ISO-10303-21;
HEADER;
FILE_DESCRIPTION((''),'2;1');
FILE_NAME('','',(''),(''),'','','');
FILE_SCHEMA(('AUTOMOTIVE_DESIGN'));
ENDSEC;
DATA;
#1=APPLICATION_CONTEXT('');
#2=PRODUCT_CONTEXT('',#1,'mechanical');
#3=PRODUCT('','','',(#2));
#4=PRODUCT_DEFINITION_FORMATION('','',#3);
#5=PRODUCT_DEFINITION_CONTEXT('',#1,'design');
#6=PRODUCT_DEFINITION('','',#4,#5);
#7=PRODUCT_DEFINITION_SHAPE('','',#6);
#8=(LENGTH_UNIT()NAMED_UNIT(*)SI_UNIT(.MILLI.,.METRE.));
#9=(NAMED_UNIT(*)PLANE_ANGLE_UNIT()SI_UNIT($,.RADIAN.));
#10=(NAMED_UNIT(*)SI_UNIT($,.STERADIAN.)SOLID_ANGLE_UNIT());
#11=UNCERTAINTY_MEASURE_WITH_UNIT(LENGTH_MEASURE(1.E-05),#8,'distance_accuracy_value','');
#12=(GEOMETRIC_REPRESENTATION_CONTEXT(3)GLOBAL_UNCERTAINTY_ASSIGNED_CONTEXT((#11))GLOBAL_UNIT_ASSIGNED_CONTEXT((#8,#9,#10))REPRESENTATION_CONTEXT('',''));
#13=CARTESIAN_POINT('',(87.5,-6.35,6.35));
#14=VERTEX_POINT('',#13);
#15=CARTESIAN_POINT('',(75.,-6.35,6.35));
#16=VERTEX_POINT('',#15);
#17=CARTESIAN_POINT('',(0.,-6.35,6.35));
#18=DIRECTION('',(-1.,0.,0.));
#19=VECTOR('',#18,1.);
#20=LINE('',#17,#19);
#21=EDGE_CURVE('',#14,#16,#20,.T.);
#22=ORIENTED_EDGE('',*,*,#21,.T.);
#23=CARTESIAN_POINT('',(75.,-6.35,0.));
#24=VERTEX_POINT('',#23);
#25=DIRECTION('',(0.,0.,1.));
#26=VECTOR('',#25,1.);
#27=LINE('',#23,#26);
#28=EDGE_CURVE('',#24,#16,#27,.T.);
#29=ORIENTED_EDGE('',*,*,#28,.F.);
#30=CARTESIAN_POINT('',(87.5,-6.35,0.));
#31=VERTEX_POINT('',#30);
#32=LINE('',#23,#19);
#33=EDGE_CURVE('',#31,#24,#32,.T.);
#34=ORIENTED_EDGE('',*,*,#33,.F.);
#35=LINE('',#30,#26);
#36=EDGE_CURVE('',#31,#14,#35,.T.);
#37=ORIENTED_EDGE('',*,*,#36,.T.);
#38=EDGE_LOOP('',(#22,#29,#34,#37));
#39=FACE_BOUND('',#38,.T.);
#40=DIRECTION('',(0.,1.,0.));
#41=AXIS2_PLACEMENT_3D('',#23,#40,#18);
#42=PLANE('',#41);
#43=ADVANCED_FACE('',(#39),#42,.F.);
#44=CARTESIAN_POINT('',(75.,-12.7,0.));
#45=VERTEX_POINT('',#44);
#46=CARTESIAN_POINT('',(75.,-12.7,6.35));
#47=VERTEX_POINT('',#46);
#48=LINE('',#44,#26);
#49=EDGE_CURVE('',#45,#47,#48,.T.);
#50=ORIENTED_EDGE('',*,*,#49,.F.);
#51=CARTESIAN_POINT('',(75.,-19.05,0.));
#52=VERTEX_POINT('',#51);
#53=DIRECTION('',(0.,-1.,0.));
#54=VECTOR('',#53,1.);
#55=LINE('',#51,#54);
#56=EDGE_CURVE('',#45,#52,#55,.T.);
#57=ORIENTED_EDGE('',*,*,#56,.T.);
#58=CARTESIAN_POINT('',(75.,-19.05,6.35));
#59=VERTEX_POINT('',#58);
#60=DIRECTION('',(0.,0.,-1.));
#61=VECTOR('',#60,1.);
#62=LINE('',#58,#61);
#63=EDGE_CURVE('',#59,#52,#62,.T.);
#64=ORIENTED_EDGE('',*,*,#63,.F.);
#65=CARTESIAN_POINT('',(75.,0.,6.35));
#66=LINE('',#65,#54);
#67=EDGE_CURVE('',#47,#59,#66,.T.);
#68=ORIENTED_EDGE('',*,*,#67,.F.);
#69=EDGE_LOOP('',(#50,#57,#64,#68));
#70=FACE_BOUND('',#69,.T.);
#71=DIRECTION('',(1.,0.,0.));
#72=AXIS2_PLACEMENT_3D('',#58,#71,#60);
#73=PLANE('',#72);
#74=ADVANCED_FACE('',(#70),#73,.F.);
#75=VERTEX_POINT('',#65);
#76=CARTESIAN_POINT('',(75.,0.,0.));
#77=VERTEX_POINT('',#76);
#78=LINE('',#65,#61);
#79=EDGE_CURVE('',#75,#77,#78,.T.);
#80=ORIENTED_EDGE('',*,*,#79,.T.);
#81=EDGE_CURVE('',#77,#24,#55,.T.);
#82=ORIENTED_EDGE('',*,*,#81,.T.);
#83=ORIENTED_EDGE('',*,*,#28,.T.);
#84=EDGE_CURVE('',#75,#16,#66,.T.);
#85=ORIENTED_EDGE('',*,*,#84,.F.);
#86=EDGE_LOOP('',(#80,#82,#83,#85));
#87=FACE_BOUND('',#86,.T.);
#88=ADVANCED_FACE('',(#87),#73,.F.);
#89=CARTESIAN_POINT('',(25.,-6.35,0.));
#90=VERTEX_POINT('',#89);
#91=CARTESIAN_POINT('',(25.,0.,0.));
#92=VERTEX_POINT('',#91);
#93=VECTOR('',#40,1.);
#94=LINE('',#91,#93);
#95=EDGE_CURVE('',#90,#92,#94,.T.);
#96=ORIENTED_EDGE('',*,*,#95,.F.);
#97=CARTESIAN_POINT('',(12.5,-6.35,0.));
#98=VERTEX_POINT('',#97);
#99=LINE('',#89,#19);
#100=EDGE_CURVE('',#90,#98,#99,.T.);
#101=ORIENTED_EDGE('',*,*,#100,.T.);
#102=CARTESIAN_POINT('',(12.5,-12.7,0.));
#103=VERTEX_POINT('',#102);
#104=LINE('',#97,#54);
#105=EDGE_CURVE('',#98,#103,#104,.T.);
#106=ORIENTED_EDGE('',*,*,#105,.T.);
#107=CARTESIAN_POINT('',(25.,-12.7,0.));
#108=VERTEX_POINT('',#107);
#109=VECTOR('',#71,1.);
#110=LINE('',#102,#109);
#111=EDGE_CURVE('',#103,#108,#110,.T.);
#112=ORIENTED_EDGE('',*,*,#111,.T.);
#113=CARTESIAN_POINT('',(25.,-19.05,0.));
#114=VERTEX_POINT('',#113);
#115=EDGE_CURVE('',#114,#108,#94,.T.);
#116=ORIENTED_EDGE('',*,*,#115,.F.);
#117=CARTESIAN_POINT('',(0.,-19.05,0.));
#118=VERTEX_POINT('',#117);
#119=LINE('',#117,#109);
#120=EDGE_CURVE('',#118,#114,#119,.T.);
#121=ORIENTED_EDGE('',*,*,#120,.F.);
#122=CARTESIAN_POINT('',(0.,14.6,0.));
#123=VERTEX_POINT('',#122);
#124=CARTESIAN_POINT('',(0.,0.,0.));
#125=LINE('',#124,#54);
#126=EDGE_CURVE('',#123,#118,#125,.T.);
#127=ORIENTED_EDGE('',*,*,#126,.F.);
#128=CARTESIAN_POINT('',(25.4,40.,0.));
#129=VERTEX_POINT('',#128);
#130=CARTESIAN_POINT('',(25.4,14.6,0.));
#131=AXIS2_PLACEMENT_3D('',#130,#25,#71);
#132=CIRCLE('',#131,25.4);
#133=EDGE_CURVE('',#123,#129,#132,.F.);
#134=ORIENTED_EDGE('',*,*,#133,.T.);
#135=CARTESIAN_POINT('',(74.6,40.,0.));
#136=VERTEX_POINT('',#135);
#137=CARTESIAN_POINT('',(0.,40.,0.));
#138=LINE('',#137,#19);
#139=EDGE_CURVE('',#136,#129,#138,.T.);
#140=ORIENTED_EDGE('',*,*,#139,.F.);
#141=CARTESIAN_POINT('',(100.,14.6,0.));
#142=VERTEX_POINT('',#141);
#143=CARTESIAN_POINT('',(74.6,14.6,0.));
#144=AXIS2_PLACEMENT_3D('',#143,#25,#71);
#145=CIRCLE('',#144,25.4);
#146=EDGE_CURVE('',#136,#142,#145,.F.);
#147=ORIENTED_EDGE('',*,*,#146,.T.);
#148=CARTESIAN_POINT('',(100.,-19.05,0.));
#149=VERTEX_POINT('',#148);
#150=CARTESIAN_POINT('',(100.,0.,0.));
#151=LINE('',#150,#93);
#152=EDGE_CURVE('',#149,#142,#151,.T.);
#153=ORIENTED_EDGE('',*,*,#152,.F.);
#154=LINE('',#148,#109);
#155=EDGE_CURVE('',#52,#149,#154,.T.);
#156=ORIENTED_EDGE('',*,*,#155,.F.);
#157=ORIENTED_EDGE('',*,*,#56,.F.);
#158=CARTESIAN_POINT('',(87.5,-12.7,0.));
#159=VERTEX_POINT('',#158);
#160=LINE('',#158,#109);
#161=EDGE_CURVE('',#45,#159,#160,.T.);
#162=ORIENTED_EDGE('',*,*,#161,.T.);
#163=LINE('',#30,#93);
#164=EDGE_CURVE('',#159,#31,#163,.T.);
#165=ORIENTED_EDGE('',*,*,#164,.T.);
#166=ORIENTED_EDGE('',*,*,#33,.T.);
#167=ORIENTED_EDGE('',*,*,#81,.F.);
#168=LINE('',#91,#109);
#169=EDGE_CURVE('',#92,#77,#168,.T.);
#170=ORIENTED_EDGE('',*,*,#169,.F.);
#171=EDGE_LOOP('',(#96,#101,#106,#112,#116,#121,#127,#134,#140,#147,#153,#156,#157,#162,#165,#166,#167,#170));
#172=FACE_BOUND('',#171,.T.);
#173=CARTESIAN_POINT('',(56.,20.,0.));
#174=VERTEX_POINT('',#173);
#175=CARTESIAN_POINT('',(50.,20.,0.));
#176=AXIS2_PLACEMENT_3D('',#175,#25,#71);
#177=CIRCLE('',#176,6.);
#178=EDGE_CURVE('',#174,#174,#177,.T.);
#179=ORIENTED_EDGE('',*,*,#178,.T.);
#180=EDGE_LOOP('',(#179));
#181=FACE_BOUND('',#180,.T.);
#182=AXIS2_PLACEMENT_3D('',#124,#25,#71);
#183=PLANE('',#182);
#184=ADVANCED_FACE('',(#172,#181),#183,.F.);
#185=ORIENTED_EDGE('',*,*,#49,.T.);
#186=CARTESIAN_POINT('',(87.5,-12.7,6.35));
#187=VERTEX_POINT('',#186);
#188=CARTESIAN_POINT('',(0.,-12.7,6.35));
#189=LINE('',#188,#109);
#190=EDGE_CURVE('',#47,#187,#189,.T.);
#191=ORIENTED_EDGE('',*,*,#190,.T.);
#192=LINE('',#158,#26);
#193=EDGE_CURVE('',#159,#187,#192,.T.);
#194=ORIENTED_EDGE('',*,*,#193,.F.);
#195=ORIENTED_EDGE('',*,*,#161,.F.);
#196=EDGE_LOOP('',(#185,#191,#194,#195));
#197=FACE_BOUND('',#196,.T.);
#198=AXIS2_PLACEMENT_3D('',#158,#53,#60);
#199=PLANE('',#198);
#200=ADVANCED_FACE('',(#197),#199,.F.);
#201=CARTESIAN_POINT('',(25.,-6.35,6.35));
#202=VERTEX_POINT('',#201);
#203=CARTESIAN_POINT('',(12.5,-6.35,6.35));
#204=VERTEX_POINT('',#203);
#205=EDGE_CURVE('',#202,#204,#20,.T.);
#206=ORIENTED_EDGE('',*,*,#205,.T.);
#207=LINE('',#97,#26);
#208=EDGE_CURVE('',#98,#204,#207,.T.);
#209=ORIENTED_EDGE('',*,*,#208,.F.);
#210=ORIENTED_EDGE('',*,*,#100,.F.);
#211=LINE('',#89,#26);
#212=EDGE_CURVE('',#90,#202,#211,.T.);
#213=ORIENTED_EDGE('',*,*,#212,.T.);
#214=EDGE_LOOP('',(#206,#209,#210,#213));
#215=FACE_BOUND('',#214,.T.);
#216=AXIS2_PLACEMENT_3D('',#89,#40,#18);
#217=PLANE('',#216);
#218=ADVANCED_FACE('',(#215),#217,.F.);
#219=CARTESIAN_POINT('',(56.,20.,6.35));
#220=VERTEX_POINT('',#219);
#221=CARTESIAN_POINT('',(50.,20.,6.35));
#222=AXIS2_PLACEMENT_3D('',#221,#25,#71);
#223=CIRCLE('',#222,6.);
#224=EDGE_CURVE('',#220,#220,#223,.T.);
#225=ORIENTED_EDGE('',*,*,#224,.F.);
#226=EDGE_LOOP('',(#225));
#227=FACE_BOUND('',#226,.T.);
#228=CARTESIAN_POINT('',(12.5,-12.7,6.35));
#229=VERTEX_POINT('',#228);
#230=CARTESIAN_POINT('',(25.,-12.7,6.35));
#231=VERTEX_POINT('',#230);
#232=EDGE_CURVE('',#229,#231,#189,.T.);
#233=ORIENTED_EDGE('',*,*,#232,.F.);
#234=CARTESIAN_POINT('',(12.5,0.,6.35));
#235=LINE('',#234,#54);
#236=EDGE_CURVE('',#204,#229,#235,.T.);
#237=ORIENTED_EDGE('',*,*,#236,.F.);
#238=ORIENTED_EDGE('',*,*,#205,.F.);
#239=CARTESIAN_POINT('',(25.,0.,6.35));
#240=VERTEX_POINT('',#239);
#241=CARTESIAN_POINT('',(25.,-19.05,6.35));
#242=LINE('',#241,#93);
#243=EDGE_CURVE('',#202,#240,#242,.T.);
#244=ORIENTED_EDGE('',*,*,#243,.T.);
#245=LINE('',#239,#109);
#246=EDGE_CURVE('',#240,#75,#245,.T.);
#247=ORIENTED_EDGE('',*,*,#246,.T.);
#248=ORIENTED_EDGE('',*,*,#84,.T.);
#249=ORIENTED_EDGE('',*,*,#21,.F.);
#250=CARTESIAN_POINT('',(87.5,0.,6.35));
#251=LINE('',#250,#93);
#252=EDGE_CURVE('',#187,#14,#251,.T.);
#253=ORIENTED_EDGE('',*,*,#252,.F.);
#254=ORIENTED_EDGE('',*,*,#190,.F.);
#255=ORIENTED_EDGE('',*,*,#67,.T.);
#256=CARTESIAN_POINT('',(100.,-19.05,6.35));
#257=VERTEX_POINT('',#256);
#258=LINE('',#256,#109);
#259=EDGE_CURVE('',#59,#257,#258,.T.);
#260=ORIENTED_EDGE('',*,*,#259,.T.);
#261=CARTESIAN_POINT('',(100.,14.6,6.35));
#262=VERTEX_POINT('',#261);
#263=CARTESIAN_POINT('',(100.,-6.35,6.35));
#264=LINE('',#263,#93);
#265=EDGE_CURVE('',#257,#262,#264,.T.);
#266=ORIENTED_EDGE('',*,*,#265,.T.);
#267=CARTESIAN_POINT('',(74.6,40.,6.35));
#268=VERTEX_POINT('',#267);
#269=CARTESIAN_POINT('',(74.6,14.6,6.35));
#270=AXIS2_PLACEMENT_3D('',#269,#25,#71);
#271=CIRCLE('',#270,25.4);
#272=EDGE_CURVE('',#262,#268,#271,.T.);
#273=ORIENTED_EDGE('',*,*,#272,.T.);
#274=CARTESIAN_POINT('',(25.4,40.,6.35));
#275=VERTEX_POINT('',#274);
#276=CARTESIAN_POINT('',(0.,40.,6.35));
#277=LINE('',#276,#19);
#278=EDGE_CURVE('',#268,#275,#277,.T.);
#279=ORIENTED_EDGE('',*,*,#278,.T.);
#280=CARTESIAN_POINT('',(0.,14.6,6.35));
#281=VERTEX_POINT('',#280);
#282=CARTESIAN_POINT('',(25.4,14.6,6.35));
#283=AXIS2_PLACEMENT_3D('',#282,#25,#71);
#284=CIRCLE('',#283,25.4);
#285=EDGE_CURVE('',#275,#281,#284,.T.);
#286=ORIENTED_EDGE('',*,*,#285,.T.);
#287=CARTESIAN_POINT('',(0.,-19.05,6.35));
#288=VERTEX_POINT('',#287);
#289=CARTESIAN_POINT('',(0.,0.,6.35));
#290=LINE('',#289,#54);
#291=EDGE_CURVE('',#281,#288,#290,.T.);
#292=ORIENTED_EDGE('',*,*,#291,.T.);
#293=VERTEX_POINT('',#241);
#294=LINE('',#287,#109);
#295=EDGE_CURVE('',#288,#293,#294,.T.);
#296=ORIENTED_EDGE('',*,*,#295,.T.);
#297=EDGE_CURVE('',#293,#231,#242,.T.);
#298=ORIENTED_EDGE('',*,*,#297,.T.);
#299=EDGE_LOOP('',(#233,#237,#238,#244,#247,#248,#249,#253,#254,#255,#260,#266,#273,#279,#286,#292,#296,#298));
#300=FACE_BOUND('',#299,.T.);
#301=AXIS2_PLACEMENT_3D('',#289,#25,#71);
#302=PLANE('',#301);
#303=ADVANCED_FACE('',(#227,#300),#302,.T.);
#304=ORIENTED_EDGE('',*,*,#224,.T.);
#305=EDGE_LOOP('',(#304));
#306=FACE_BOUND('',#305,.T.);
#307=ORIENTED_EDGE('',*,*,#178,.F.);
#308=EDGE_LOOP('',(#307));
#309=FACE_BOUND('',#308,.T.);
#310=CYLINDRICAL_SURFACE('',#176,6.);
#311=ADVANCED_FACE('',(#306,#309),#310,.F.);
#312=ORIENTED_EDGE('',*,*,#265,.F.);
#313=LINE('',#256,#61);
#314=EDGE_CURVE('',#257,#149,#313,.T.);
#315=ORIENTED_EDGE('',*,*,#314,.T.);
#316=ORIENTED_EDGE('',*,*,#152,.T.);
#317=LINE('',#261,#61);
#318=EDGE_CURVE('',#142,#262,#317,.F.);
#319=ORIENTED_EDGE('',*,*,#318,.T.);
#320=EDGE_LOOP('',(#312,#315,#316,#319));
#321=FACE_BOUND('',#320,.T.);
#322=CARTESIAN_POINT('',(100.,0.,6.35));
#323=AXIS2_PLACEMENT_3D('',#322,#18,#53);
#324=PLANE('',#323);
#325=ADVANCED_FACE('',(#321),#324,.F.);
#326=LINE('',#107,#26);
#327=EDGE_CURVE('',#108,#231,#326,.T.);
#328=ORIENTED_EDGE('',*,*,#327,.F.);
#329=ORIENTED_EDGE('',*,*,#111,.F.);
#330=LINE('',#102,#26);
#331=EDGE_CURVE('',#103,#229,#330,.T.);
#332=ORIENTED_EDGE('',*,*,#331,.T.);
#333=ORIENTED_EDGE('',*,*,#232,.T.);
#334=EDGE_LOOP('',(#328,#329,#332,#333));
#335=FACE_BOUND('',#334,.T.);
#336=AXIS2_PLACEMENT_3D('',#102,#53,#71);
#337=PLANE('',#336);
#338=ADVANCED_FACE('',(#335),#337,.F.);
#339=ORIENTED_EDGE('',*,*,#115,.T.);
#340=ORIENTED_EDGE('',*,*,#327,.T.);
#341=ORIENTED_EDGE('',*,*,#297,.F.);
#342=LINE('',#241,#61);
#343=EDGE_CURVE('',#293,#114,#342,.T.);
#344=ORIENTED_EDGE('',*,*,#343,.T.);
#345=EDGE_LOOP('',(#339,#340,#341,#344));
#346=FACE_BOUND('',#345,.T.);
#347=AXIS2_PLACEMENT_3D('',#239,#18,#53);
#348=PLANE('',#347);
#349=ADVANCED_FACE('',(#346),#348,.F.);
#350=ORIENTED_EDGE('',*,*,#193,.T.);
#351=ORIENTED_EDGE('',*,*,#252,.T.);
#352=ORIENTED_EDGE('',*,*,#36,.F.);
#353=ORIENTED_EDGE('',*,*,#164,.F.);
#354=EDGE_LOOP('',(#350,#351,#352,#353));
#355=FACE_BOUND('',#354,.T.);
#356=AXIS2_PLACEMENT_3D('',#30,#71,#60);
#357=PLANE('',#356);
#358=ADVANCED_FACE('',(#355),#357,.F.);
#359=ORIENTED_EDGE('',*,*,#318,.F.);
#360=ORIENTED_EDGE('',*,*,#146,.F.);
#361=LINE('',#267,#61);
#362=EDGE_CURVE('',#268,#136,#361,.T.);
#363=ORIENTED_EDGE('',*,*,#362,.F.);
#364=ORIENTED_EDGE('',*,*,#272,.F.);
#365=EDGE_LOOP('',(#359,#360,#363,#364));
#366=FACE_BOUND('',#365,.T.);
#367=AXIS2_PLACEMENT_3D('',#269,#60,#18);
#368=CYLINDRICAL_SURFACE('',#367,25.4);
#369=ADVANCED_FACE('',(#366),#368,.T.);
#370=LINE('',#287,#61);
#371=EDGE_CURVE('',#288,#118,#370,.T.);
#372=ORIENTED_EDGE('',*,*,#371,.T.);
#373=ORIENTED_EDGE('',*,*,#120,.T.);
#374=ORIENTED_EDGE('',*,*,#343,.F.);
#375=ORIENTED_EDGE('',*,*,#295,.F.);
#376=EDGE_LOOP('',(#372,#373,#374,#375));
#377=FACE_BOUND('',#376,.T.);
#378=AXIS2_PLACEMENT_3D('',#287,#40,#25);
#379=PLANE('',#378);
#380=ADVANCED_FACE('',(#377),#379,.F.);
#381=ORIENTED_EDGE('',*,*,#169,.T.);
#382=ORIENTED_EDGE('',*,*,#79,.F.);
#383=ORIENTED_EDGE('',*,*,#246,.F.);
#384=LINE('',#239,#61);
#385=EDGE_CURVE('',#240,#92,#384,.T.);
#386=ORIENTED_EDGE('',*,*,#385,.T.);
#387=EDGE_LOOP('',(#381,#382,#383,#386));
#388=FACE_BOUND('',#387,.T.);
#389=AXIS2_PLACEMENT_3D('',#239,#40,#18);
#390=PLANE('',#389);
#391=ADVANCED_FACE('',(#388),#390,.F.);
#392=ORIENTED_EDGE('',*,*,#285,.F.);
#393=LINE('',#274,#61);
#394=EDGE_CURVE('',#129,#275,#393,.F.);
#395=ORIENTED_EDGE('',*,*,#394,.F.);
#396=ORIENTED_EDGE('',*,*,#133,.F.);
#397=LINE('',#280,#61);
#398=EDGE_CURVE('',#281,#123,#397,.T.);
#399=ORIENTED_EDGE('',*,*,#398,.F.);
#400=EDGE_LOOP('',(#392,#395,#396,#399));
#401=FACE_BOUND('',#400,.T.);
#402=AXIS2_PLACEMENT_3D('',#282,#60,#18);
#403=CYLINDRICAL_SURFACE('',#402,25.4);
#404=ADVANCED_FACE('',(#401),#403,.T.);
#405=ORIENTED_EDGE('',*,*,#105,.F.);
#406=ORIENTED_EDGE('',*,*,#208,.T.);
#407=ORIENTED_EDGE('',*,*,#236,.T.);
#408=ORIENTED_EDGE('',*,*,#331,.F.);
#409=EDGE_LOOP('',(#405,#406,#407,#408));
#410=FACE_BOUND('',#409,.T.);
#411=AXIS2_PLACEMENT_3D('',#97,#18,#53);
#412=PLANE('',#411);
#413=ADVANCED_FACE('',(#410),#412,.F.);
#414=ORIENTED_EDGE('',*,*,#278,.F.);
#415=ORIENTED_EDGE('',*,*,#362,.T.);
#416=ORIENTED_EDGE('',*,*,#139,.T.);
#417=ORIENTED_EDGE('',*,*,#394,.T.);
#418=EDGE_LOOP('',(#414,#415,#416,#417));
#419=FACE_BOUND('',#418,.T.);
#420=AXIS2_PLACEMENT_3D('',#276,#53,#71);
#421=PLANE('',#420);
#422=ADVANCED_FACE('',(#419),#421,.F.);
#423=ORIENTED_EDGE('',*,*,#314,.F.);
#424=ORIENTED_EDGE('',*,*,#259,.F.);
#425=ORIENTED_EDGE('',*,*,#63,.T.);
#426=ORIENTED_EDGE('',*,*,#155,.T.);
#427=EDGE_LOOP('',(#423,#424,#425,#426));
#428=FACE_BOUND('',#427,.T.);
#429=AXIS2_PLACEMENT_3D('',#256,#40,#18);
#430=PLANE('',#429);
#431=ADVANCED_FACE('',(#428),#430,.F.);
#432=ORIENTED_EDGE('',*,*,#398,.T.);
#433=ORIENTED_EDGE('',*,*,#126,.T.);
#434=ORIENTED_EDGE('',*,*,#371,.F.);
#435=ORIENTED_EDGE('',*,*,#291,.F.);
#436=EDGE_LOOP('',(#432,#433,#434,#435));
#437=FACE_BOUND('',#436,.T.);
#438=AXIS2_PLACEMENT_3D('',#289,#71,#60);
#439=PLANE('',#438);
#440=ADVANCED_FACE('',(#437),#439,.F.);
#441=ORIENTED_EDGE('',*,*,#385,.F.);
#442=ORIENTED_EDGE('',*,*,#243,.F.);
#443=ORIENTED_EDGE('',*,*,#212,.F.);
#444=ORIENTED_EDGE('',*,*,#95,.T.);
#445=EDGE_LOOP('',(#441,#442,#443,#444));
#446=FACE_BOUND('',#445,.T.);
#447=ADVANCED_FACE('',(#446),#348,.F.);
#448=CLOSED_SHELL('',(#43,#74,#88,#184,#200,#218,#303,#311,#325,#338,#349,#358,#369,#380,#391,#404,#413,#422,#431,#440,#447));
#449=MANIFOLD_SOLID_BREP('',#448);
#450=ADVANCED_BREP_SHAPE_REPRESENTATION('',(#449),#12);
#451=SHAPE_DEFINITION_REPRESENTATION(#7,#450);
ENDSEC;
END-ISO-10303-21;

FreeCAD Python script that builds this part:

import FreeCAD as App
import Part
import Sketcher
from FreeCAD import Vector


def edges_at(feature, points):
    """Names of the edges that pass closest to the given points."""
    edges = feature.Shape.Edges
    near = lambda p: min(range(len(edges)), key=lambda i: edges[i].distToShape(Part.Vertex(*p))[0])
    return sorted({f"Edge{near(p) + 1}" for p in points})


def add_polygon(sketch, points):
    """Adds a closed chain of lines whose ends are joined by coincident constraints."""
    first, n = sketch.GeometryCount, len(points)
    for a, b in zip(points, points[1:] + points[:1]):
        sketch.addGeometry(Part.LineSegment(App.Vector(*a, 0), App.Vector(*b, 0)), False)
    for i in range(n):
        sketch.addConstraint(Sketcher.Constraint("Coincident", first + i, 2, first + (i + 1) % n, 1))

doc = App.newDocument("Part")
body = doc.addObject("PartDesign::Body", "Body")

sketch1 = body.newObject("Sketcher::SketchObject", "Sketch")
sketch1.AttachmentSupport = (doc.getObject("XY_Plane"), [""])
sketch1.MapMode = "FlatFace"
add_polygon(sketch1, [(25, 0), (75, 0), (75, -6), (75, -19), (100, -19), (100, 40), (0, 40), (0, -19), (25, -19)])
sketch1.addConstraint(Sketcher.Constraint("Horizontal", 0))
sketch1.addConstraint(Sketcher.Constraint("Vertical", 1))
sketch1.addConstraint(Sketcher.Constraint("Vertical", 2))
sketch1.addConstraint(Sketcher.Constraint("Horizontal", 3))
sketch1.addConstraint(Sketcher.Constraint("Vertical", 4))
sketch1.addConstraint(Sketcher.Constraint("Horizontal", 5))
sketch1.addConstraint(Sketcher.Constraint("Vertical", 6))
sketch1.addConstraint(Sketcher.Constraint("Horizontal", 7))
sketch1.addConstraint(Sketcher.Constraint("Vertical", 8))
sketch1.addConstraint(Sketcher.Constraint("PointOnObject", 0, 2, -1))
sketch1.addConstraint(Sketcher.Constraint("PointOnObject", 5, 2, -2))
sketch1.addConstraint(Sketcher.Constraint("Horizontal", 3, 2, 6, 2))
sketch1.addConstraint(Sketcher.Constraint("Equal", 3, 7))
sketch1.addConstraint(Sketcher.Constraint("DistanceX", 0, 1, 0, 2, 50.0))
sketch1.addConstraint(Sketcher.Constraint("DistanceX", 3, 1, 3, 2, 25.0))
sketch1.addConstraint(Sketcher.Constraint("DistanceY", 2, 2, 2, 1, 12.7))
sketch1.addConstraint(Sketcher.Constraint("DistanceY", -1, 1, 4, 2, 40.0))
sketch1.addConstraint(Sketcher.Constraint("DistanceY", 1, 2, 1, 1, 6.35))
pad1 = body.newObject("PartDesign::Pad", "Pad")
pad1.Profile = sketch1
pad1.Length = 6.35

sketch2 = body.newObject("Sketcher::SketchObject", "Sketch001")
sketch2.AttachmentSupport = (doc.getObject("XY_Plane"), [""])
sketch2.MapMode = "FlatFace"
sketch2.AttachmentOffset = App.Placement(Vector(0, 0, 6.35), App.Rotation())
sketch2.addGeometry(Part.Circle(Vector(50, 20, 0), Vector(0, 0, 1), 6), False)
sketch2.addConstraint(Sketcher.Constraint("Diameter", 0, 12.0))
sketch2.addConstraint(Sketcher.Constraint("DistanceX", -1, 1, 0, 3, 50.0))
sketch2.addConstraint(Sketcher.Constraint("DistanceY", -1, 1, 0, 3, 20.0))
pocket1 = body.newObject("PartDesign::Pocket", "Pocket")
pocket1.Profile = sketch2
pocket1.Type = "ThroughAll"
pocket1.Midplane = True
doc.recompute()

fillet = body.newObject("PartDesign::Fillet", "Fillet")
fillet.Base = (pocket1, edges_at(pocket1, [(0, 40, 3.175), (100, 40, 3.175)]))
fillet.Radius = 25.4

sketch3 = body.newObject("Sketcher::SketchObject", "Sketch002")
sketch3.AttachmentSupport = (doc.getObject("XY_Plane"), [""])
sketch3.MapMode = "FlatFace"
sketch3.AttachmentOffset = App.Placement(Vector(0, 0, 6.35), App.Rotation())
add_polygon(sketch3, [(75, -6), (75, -13), (87, -13), (87, -6)])
add_polygon(sketch3, [(12, -6), (12, -13), (25, -13), (25, -6)])
sketch3.addConstraint(Sketcher.Constraint("Vertical", 0))
sketch3.addConstraint(Sketcher.Constraint("Horizontal", 1))
sketch3.addConstraint(Sketcher.Constraint("Vertical", 2))
sketch3.addConstraint(Sketcher.Constraint("Horizontal", 3))
sketch3.addConstraint(Sketcher.Constraint("Vertical", 4))
sketch3.addConstraint(Sketcher.Constraint("Horizontal", 5))
sketch3.addConstraint(Sketcher.Constraint("Vertical", 6))
sketch3.addConstraint(Sketcher.Constraint("Horizontal", 7))
sketch3.addConstraint(Sketcher.Constraint("Horizontal", 1, 2, 4, 2))
sketch3.addConstraint(Sketcher.Constraint("Horizontal", 3, 2, 6, 2))
sketch3.addConstraint(Sketcher.Constraint("Equal", 3, 5))
sketch3.addConstraint(Sketcher.Constraint("DistanceX", 1, 1, 1, 2, 12.5))
sketch3.addConstraint(Sketcher.Constraint("DistanceX", -1, 1, 0, 2, 75.0))
sketch3.addConstraint(Sketcher.Constraint("DistanceX", -1, 1, 5, 2, 25.0))
sketch3.addConstraint(Sketcher.Constraint("DistanceY", 0, 2, 0, 1, 6.35))
sketch3.addConstraint(Sketcher.Constraint("DistanceY", 0, 2, -1, 1, 12.7))
pocket2 = body.newObject("PartDesign::Pocket", "Pocket001")
pocket2.Profile = sketch3
pocket2.Type = "ThroughAll"
pocket2.Midplane = True

doc.recompute()
